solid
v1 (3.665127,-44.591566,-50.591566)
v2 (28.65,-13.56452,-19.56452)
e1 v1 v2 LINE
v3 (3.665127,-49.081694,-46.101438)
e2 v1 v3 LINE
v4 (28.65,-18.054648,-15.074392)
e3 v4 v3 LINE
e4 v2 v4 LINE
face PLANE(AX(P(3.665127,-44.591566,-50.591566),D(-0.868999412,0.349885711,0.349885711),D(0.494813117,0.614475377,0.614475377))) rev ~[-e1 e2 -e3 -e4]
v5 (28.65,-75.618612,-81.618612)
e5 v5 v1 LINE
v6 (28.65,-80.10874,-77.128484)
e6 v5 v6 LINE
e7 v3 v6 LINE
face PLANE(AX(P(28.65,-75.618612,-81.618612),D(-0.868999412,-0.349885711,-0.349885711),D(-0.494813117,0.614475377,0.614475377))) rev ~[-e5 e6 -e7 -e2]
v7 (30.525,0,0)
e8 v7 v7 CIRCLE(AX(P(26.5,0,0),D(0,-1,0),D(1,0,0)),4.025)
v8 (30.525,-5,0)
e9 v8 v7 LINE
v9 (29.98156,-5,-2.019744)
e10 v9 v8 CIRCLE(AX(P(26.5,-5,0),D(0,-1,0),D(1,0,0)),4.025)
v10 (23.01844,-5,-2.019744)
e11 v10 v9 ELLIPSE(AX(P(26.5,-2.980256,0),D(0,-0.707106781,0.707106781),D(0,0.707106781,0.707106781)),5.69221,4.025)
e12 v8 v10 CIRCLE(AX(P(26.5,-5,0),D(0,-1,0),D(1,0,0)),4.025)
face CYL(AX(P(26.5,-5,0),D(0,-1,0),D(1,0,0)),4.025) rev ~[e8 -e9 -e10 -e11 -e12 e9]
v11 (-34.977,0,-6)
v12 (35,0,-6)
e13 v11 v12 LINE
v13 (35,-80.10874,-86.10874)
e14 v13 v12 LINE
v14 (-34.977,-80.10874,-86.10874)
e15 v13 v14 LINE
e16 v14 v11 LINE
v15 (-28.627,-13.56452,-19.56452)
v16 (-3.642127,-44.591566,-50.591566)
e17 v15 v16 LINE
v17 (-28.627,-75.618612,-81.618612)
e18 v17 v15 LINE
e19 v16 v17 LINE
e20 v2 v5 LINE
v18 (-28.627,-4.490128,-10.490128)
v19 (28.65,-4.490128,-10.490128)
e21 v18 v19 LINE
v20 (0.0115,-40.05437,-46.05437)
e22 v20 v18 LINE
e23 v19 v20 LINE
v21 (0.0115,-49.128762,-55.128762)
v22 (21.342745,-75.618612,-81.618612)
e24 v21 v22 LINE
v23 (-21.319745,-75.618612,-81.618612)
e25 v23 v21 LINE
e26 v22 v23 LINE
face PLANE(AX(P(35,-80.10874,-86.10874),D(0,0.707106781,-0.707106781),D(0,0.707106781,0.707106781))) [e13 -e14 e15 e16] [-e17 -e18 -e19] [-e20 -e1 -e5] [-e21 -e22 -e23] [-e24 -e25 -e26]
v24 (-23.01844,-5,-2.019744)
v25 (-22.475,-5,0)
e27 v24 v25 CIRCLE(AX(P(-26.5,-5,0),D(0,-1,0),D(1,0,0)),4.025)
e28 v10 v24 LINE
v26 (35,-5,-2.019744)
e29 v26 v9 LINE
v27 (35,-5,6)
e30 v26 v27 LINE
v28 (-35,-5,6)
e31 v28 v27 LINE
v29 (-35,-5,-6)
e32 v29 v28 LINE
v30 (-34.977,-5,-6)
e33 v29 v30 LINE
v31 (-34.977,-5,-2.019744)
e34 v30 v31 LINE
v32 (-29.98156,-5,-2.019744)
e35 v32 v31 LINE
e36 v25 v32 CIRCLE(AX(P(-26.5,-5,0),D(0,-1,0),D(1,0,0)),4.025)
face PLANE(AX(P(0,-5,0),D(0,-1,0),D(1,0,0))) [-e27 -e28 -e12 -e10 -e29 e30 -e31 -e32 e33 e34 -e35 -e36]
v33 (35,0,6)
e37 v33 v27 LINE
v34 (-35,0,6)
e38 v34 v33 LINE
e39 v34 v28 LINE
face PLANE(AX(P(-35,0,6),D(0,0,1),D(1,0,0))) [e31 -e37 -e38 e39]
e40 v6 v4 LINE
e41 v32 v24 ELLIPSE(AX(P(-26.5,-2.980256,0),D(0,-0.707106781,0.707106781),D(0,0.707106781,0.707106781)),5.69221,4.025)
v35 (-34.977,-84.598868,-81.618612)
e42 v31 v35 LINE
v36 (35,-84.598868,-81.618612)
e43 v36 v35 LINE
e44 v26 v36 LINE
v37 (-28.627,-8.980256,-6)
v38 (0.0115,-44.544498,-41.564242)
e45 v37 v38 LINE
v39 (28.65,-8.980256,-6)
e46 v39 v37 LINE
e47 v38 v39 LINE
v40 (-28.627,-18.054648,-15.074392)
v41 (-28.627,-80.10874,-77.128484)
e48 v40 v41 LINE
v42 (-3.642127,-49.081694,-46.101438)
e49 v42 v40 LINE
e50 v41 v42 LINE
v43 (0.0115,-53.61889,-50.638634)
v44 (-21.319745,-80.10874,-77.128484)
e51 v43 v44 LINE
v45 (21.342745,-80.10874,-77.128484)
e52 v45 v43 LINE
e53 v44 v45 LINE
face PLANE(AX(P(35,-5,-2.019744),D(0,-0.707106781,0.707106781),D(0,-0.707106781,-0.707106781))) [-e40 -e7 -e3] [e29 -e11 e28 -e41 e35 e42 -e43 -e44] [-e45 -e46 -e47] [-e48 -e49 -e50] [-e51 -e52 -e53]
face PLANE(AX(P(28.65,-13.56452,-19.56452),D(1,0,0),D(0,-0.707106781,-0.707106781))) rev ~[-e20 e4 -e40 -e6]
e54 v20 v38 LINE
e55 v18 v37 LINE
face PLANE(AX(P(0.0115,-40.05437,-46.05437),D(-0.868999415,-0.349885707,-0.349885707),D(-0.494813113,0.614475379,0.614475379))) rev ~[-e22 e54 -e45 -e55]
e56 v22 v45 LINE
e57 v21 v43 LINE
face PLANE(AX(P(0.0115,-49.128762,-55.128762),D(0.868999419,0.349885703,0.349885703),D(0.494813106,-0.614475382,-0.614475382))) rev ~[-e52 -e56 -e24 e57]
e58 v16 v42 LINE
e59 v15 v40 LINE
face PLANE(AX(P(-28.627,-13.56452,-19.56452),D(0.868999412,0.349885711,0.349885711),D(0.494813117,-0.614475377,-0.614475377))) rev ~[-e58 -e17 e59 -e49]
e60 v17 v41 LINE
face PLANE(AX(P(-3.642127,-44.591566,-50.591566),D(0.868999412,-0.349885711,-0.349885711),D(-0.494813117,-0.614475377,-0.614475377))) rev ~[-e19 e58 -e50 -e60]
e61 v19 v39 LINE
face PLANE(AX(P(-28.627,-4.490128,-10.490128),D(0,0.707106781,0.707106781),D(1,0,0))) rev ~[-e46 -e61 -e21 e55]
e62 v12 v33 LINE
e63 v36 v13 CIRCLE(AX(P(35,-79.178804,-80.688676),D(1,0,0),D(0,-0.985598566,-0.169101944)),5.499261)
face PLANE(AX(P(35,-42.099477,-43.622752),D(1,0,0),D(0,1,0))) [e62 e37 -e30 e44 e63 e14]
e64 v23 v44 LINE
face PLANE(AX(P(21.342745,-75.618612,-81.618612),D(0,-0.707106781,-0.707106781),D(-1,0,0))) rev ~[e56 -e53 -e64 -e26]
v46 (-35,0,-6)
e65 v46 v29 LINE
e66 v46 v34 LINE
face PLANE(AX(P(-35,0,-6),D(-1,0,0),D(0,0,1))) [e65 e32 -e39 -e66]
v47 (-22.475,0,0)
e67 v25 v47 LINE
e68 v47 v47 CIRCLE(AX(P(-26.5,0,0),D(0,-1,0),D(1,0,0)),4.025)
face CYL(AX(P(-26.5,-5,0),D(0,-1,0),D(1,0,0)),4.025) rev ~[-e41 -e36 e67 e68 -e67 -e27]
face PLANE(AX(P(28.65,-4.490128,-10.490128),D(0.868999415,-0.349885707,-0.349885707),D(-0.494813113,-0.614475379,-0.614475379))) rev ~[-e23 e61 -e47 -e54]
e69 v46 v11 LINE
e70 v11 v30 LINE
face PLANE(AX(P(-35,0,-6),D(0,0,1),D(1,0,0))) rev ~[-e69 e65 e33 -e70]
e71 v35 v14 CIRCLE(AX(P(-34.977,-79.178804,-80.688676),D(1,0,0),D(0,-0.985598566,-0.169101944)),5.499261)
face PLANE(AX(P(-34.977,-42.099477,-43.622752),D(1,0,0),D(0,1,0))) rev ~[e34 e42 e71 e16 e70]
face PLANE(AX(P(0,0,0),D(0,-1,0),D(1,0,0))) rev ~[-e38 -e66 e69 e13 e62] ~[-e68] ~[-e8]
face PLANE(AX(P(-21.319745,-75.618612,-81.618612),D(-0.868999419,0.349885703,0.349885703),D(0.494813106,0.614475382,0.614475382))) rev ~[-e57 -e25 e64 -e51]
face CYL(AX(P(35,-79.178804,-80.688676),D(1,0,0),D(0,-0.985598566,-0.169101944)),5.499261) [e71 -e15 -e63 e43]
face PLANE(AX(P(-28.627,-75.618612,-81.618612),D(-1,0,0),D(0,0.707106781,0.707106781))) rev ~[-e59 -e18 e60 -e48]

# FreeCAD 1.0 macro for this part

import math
import FreeCAD as App
import Part
import Sketcher
Q = App.Units.Quantity


def add_polygon(sketch, points):
    """Adds a closed chain of lines whose ends are joined by coincident constraints."""
    first, n = sketch.GeometryCount, len(points)
    for a, b in zip(points, points[1:] + points[:1]):
        sketch.addGeometry(Part.LineSegment(App.Vector(*a, 0), App.Vector(*b, 0)), False)
    for i in range(n):
        sketch.addConstraint(Sketcher.Constraint("Coincident", first + i, 2, first + (i + 1) % n, 1))

doc = App.newDocument("Part")
body = doc.addObject("PartDesign::Body", "Body")

# Sketch on XZ plane
sketch1 = body.newObject("Sketcher::SketchObject", "Sketch")
sketch1.AttachmentSupport = (doc.getObject("XZ_Plane"), [""])
sketch1.MapMode = "FlatFace"
add_polygon(sketch1, [(-35, 6), (-35, -6), (35, -6), (35, 6)])  # lines 0-3
sketch1.addConstraint([
    Sketcher.Constraint("Vertical", 0),
    Sketcher.Constraint("Horizontal", 1),
    Sketcher.Constraint("Vertical", 2),
    Sketcher.Constraint("Horizontal", 3),
    Sketcher.Constraint("Symmetric", 0, 2, 2, 2, -1, 1),
    Sketcher.Constraint("DistanceX", 1, 1, 1, 2, 70.0),
    Sketcher.Constraint("DistanceY", 0, 2, 0, 1, 12.0),
])
pad1 = body.newObject("PartDesign::Pad", "Pad")
pad1.Profile = sketch1
pad1.Length = 5

# Sketch on XZ plane
sketch2 = body.newObject("Sketcher::SketchObject", "Sketch001")
sketch2.AttachmentSupport = (doc.getObject("XZ_Plane"), [""])
sketch2.MapMode = "FlatFace"
sketch2.AttachmentOffset = App.Placement(App.Vector(0, 0, 5), App.Rotation())
sketch2.addGeometry([
    Part.Circle(App.Vector(-26.5, 0, 0), App.Vector(0, 0, 1), 4),
    Part.Circle(App.Vector(26.5, 0, 0), App.Vector(0, 0, 1), 4),
], False)
sketch2.addConstraint([
    Sketcher.Constraint("Equal", 0, 1),
    Sketcher.Constraint("Symmetric", 0, 3, 1, 3, -1, 1),
    Sketcher.Constraint("PointOnObject", 0, 3, -1),
    Sketcher.Constraint("Diameter", 0, 8.05),
    Sketcher.Constraint("DistanceX", 0, 3, 1, 3, 53.0),
])
pocket1 = body.newObject("PartDesign::Pocket", "Pocket")
pocket1.Profile = sketch2
pocket1.Length = 25.4

# Sketch on YZ plane
sketch3 = body.newObject("Sketcher::SketchObject", "Sketch002")
sketch3.AttachmentSupport = (doc.getObject("YZ_Plane"), [""])
sketch3.MapMode = "FlatFace"
sketch3.AttachmentOffset = App.Placement(App.Vector(0, 0, 35), App.Rotation())
sketch3.addGeometry([
    Part.LineSegment(App.Vector(-80.1, -86.1, 0), App.Vector(0, -6, 0)),  # 0
    Part.LineSegment(App.Vector(0, -6, 0), App.Vector(-5, -6, 0)),  # 1
    Part.LineSegment(App.Vector(-5, -6, 0), App.Vector(-5, -2, 0)),  # 2
    Part.LineSegment(App.Vector(-5, -2, 0), App.Vector(-84.6, -81.6, 0)),  # 3
    Part.ArcOfCircle(Part.Circle(App.Vector(-79.2, -80.7, 0), App.Vector(0, 0, 1), 5.5), math.radians(-170), math.radians(-100)),  # 4
], False)
sketch3.addConstraint([
    Sketcher.Constraint("Coincident", 0, 2, 1, 1),
    Sketcher.Constraint("Coincident", 1, 2, 2, 1),
    Sketcher.Constraint("Coincident", 2, 2, 3, 1),
    Sketcher.Constraint("Coincident", 3, 2, 4, 1),
    Sketcher.Constraint("Coincident", 4, 2, 0, 1),
    Sketcher.Constraint("Horizontal", 1),
    Sketcher.Constraint("Vertical", 2),
    Sketcher.Constraint("PointOnObject", 0, 2, -2),
    Sketcher.Constraint("Parallel", 0, 3),
    Sketcher.Constraint("DistanceX", 1, 2, 1, 1, 5.0),
    Sketcher.Constraint("Angle", 0, Q("45 deg")),
    Sketcher.Constraint("DistanceY", 0, 2, -1, 1, 6.0),
    Sketcher.Constraint("Radius", 4, 5.499261),
    Sketcher.Constraint("Distance", 3, 112.569799),
    Sketcher.Constraint("DistanceY", 2, 1, 2, 2, 3.980256),
    Sketcher.Constraint("DistanceX", 4, 2, -1, 1, 80.10874),
])
pad2 = body.newObject("PartDesign::Pad", "Pad001")
pad2.Profile = sketch3
pad2.Length = 69.977
pad2.Reversed = True

# Sketch on XZ plane
sketch4 = body.newObject("Sketcher::SketchObject", "Sketch003")
sketch4.AttachmentSupport = (doc.getObject("XZ_Plane"), [""])
sketch4.MapMode = "FlatFace"
sketch4.addGeometry([
    Part.Circle(App.Vector(-26.5, 0, 0), App.Vector(0, 0, 1), 4),
    Part.Circle(App.Vector(26.5, 0, 0), App.Vector(0, 0, 1), 4),
], False)
sketch4.addConstraint([
    Sketcher.Constraint("Equal", 0, 1),
    Sketcher.Constraint("Symmetric", 0, 3, 1, 3, -1, 1),
    Sketcher.Constraint("PointOnObject", 0, 3, -1),
    Sketcher.Constraint("Diameter", 0, 8.05),
    Sketcher.Constraint("DistanceX", 0, 3, 1, 3, 53.0),
])
pocket2 = body.newObject("PartDesign::Pocket", "Pocket001")
pocket2.Profile = sketch4
pocket2.Length = 25.4
pocket2.Reversed = True

# Sketch on an angled plane
sketch5 = body.newObject("Sketcher::SketchObject", "Sketch004")
sketch5.Placement = App.Placement(App.Vector(0, 3, -3), App.Rotation(App.Vector(-1, 0, 0), App.Vector(0, 0.707106781, 0.707106781), App.Vector(0, 0.707106781, -0.707106781), "ZXY"))
add_polygon(sketch5, [(-4, -67), (-29, -23), (-29, -111)])  # lines 0-2
add_polygon(sketch5, [(0, -61), (29, -11), (-29, -11)])  # lines 3-5
add_polygon(sketch5, [(29, -111), (29, -23), (4, -67)])  # lines 6-8
add_polygon(sketch5, [(-21, -111), (21, -111), (0, -74)])  # lines 9-11
sketch5.addConstraint([
    Sketcher.Constraint("Vertical", 1),
    Sketcher.Constraint("Horizontal", 4),
    Sketcher.Constraint("Vertical", 6),
    Sketcher.Constraint("Horizontal", 9),
    Sketcher.Constraint("Parallel", 2, 3),
    Sketcher.Constraint("Parallel", 0, 5),
    Sketcher.Constraint("Parallel", 3, 7),
    Sketcher.Constraint("Parallel", 5, 8),
    Sketcher.Constraint("Parallel", 8, 10),
    Sketcher.Constraint("Parallel", 7, 11),
    Sketcher.Constraint("Horizontal", 0, 2, 6, 2),
    Sketcher.Constraint("Horizontal", 2, 2, 7, 2),
    Sketcher.Constraint("Horizontal", 1, 2, 8, 2),
    Sketcher.Constraint("Horizontal", 8, 2, 9, 2),
    Sketcher.Constraint("Vertical", 1, 2, 4, 2),
    Sketcher.Constraint("Vertical", 3, 2, 6, 2),
    Sketcher.Constraint("Vertical", 5, 2, 10, 2),
    Sketcher.Constraint("DistanceX", 4, 2, 4, 1, 57.277),
    Sketcher.Constraint("DistanceX", 0, 2, -1, 1, 28.65),
    Sketcher.Constraint("Distance", 10, 43.109701),
    Sketcher.Constraint("DistanceX", 9, 1, 9, 2, 42.66249),
    Sketcher.Constraint("DistanceY", 10, 2, -1, 1, 73.721202),
    Sketcher.Constraint("DistanceY", 1, 2, 1, 1, 87.757738),
    Sketcher.Constraint("DistanceY", 3, 2, -1, 1, 10.592641),
])
pocket3 = body.newObject("PartDesign::Pocket", "Pocket002")
pocket3.Profile = sketch5
pocket3.Length = 25.4

doc.recompute()
